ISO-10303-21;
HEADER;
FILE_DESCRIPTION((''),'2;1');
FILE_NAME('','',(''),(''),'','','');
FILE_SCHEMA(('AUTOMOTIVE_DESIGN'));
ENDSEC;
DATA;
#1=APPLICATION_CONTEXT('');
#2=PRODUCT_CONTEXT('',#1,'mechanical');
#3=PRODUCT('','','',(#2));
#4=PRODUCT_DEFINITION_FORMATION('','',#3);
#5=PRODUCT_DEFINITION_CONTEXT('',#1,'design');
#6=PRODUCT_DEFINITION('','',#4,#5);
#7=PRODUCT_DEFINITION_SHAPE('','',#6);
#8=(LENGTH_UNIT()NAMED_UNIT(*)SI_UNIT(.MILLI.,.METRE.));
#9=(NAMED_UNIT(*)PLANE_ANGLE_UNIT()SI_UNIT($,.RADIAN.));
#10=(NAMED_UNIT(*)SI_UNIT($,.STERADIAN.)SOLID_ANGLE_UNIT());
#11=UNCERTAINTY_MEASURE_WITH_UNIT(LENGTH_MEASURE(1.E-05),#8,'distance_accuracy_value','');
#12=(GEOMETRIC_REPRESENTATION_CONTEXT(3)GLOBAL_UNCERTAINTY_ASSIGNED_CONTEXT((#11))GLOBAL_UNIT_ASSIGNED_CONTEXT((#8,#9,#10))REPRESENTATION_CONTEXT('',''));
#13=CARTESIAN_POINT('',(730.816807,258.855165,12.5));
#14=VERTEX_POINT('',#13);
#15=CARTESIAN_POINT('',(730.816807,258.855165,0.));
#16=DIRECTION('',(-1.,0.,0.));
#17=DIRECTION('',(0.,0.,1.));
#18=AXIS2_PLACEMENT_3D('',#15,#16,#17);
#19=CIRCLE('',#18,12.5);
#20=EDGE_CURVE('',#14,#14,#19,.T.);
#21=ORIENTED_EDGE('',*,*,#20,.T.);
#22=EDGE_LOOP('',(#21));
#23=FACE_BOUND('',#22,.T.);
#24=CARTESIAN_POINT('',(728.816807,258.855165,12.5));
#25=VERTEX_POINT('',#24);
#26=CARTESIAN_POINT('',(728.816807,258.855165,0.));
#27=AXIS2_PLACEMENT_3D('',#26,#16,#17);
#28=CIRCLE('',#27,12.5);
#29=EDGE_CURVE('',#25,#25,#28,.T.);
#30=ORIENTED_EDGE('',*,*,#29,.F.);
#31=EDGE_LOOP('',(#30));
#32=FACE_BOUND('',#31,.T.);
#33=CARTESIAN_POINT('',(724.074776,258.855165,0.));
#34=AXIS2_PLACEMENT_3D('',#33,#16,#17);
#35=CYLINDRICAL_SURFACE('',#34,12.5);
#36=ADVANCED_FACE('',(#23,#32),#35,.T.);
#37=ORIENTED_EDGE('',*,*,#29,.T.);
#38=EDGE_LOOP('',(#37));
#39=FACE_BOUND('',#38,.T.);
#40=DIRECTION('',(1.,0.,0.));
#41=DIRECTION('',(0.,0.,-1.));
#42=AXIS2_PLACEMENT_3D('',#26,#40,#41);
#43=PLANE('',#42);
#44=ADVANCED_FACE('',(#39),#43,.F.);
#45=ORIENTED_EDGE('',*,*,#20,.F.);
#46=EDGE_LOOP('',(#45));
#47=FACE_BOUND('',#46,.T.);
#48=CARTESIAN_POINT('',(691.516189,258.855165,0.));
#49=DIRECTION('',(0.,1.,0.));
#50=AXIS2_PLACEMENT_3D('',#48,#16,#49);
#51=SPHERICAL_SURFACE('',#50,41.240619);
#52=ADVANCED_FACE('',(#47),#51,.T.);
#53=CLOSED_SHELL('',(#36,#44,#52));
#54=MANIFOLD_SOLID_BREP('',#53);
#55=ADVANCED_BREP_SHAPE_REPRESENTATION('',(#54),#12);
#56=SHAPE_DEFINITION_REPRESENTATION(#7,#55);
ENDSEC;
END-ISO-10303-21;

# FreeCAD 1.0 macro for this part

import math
import FreeCAD as App
import Part
import Sketcher

V = App.Vector
Q = App.Units.Quantity

doc = App.newDocument("Part")
body = doc.addObject("PartDesign::Body", "Body")

sketch1 = body.newObject("Sketcher::SketchObject", "Sketch")
sketch1.AttachmentSupport = (doc.getObject("XY_Plane"), [""])
sketch1.MapMode = "FlatFace"
sketch1.addGeometry([
    Part.LineSegment(V(728.8, 271.4, 0), V(728.8, 258.9, 0)),
    Part.LineSegment(V(728.8, 258.9, 0), V(732.8, 258.9, 0)),
    Part.ArcOfCircle(Part.Circle(V(691.5, 258.9, 0), V(0, 0, 1), 41.2), math.radians(0), math.radians(17.64)),
    Part.LineSegment(V(730.8, 271.4, 0), V(728.8, 271.4, 0)),
], False)
sketch1.addGeometry(Part.LineSegment(V(691.5, 258.9, 0), V(732.8, 258.9, 0)), True)
sketch1.addConstraint([
    Sketcher.Constraint("Coincident", 0, 2, 1, 1),
    Sketcher.Constraint("Coincident", 1, 2, 2, 1),
    Sketcher.Constraint("Coincident", 2, 2, 3, 1),
    Sketcher.Constraint("Coincident", 3, 2, 0, 1),
    Sketcher.Constraint("Vertical", 0),
    Sketcher.Constraint("Horizontal", 1),
    Sketcher.Constraint("Horizontal", 3),
    Sketcher.Constraint("Horizontal", 4),
    Sketcher.Constraint("Coincident", 4, 1, 2, 3),
    Sketcher.Constraint("Coincident", 4, 2, 1, 2),
    Sketcher.Constraint("DistanceX", 3, 2, 3, 1, Q("2 mm")),
    Sketcher.Constraint("DistanceY", 0, 2, 0, 1, Q("12.5 mm")),
    Sketcher.Constraint("DistanceX", 1, 1, 1, 2, Q("3.94 mm")),
    Sketcher.Constraint("DistanceX", -1, 1, 2, 3, Q("691.516189 mm")),
    Sketcher.Constraint("DistanceY", -1, 1, 2, 3, Q("258.855165 mm")),
])
revolution = body.newObject("PartDesign::Revolution", "Revolution")
revolution.Profile = sketch1
revolution.ReferenceAxis = (sketch1, ["Axis0"])
revolution.Angle = 360

doc.recompute()
